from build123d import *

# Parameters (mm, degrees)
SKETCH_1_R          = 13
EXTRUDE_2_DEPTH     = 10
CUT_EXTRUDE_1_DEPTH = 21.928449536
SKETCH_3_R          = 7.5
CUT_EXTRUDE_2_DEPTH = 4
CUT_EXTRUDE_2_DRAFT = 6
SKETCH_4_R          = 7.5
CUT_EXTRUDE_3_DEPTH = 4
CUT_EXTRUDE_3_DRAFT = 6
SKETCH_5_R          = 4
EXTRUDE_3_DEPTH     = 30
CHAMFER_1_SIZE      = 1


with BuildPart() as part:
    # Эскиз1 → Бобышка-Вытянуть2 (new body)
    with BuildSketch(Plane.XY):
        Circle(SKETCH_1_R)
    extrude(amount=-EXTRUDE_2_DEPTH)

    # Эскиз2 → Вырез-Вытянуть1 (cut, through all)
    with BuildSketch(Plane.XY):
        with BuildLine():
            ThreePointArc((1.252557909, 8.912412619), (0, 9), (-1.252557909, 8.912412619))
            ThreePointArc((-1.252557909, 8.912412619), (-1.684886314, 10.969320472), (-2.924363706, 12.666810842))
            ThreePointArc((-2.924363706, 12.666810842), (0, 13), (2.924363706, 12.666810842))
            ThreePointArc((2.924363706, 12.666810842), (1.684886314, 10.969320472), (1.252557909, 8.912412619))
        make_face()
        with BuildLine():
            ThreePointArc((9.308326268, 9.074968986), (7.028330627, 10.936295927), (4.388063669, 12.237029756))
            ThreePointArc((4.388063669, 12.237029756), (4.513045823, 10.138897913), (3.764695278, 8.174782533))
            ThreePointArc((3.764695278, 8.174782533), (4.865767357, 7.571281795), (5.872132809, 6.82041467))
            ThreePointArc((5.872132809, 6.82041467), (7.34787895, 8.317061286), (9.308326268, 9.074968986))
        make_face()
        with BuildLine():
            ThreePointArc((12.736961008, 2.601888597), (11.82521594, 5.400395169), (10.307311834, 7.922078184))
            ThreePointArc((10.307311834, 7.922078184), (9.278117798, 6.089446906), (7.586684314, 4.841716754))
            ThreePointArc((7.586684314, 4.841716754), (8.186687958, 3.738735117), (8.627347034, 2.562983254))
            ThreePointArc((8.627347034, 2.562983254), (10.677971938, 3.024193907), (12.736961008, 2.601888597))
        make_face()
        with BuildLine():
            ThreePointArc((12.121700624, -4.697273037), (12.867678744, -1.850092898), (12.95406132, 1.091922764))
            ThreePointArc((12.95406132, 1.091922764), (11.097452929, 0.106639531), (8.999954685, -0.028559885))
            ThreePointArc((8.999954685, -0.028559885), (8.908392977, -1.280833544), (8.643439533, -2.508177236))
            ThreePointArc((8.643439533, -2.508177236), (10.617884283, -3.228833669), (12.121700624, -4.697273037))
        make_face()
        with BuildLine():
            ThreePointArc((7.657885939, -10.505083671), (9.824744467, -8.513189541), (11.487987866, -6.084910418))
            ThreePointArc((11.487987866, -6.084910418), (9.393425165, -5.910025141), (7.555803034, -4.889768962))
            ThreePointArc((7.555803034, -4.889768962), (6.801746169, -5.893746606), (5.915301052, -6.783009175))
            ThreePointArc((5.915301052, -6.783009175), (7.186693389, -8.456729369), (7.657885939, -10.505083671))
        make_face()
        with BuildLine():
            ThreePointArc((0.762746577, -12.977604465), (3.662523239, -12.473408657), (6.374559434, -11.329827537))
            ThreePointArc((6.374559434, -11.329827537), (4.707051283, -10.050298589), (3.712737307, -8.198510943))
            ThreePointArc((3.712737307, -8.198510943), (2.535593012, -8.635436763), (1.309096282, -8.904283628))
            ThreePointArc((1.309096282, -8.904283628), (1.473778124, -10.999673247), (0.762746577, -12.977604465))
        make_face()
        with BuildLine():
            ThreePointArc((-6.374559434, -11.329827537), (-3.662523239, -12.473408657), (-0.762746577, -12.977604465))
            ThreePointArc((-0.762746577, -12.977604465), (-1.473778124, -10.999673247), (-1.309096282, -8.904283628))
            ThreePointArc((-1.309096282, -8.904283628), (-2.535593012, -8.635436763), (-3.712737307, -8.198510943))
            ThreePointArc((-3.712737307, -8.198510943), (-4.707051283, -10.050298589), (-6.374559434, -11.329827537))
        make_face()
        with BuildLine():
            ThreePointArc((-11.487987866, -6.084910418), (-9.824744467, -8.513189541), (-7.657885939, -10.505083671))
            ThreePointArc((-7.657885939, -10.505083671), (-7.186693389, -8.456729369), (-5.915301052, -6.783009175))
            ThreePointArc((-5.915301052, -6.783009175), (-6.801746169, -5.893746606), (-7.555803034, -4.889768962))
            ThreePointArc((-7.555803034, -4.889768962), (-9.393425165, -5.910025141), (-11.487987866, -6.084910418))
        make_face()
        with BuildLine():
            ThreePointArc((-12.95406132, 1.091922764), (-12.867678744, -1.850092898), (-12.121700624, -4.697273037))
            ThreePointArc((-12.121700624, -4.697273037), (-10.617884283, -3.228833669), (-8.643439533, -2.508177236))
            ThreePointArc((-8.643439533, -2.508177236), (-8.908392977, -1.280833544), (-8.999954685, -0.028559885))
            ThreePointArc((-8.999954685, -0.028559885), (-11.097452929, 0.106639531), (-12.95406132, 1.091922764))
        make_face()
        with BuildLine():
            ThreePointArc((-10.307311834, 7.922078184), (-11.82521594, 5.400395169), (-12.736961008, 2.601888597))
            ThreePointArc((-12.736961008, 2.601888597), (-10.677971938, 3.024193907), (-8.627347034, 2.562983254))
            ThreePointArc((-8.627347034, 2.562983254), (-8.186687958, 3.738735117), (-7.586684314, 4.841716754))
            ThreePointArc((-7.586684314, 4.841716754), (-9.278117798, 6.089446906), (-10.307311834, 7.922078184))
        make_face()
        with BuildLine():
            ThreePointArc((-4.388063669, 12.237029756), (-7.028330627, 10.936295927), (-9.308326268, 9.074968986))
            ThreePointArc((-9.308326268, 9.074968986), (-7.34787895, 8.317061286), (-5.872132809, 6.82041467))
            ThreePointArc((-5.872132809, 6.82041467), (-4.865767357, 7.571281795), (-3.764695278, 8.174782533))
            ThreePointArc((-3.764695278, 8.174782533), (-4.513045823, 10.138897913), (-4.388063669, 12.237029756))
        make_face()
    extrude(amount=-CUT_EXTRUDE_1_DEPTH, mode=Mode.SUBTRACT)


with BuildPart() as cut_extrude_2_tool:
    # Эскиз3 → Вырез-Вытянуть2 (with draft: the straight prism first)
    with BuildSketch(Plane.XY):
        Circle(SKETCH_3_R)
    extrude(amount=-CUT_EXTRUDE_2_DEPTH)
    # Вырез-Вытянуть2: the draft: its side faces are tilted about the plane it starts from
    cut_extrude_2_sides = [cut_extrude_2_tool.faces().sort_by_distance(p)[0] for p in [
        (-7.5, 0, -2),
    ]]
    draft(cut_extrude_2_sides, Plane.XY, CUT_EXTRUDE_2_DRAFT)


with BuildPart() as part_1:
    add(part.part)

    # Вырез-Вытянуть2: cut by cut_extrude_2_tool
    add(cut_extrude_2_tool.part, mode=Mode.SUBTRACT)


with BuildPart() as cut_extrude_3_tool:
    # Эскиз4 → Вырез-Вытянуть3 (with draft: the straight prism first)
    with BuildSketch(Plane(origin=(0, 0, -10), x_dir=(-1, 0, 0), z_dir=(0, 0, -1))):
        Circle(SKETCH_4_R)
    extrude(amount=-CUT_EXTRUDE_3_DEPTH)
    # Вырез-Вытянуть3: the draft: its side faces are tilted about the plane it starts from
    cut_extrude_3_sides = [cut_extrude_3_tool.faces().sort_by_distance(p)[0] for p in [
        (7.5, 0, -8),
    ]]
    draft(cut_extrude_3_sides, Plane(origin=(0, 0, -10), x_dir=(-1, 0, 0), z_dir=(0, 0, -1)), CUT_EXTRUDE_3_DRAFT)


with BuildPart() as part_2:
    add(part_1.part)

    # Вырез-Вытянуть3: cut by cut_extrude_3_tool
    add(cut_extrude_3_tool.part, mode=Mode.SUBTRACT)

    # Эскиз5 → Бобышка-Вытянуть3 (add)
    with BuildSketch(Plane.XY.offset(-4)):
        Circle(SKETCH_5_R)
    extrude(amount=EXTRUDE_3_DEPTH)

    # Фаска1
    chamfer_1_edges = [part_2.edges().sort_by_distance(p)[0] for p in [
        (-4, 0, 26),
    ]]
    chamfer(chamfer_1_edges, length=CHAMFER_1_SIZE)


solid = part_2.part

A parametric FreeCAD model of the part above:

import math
import FreeCAD as App
import Part
import Sketcher
Q = App.Units.Quantity


def edges_at(feature, points):
    """Names of the edges that pass closest to the given points."""
    edges = feature.Shape.Edges
    near = lambda p: min(range(len(edges)), key=lambda i: edges[i].distToShape(Part.Vertex(*p))[0])
    return sorted({f"Edge{near(p) + 1}" for p in points})


def faces_at(feature, points):
    """Names of the faces that lie closest to the given points."""
    faces = feature.Shape.Faces
    near = lambda p: min(range(len(faces)), key=lambda i: faces[i].distToShape(Part.Vertex(*p))[0])
    return sorted({f"Face{near(p) + 1}" for p in points})

doc = App.newDocument("Part")
body = doc.addObject("PartDesign::Body", "Body")

sketch1 = body.newObject("Sketcher::SketchObject", "Sketch")
sketch1.AttachmentSupport = (doc.getObject("XY_Plane"), [""])
sketch1.MapMode = "FlatFace"
sketch1.addGeometry(Part.Circle(App.Vector(0, 0, 0), App.Vector(0, 0, 1), 13), False)
sketch1.addConstraint([
    Sketcher.Constraint("Coincident", 0, 3, -1, 1),
    Sketcher.Constraint("Diameter", 0, Q("26 mm")),
])
pad1 = body.newObject("PartDesign::Pad", "Pad")
pad1.Profile = sketch1
pad1.Length = 10
pad1.Reversed = True

sketch2 = body.newObject("Sketcher::SketchObject", "Sketch001")
sketch2.AttachmentSupport = (doc.getObject("XY_Plane"), [""])
sketch2.MapMode = "FlatFace"
sketch2.addGeometry([
    Part.ArcOfCircle(Part.Circle(App.Vector(0, 0, 0), App.Vector(0, 0, 1), 9), math.radians(82), math.radians(98)),
    Part.ArcOfCircle(Part.Circle(App.Vector(6.3, 8.9, 0), App.Vector(0, 0, 1), 5), math.radians(132), math.radians(180)),
    Part.ArcOfCircle(Part.Circle(App.Vector(0, 0, 0), App.Vector(0, 0, 1), 13), math.radians(77), math.radians(103)),
    Part.ArcOfCircle(Part.Circle(App.Vector(-6.3, 8.9, 0), App.Vector(0, 0, 1), 5), math.radians(0), math.radians(48)),
    Part.ArcOfCircle(Part.Circle(App.Vector(0, 0, 0), App.Vector(0, 0, 1), 13), math.radians(44), math.radians(70)),
    Part.ArcOfCircle(Part.Circle(App.Vector(-0.4, 10.9, 0), App.Vector(0, 0, 1), 5), math.radians(-33), math.radians(16)),
    Part.ArcOfCircle(Part.Circle(App.Vector(0, 0, 0), App.Vector(0, 0, 1), 9), math.radians(49.27), math.radians(65.27)),
    Part.ArcOfCircle(Part.Circle(App.Vector(10.1, 4.1, 0), App.Vector(0, 0, 1), 5), math.radians(99), math.radians(148)),
    Part.ArcOfCircle(Part.Circle(App.Vector(0, 0, 0), App.Vector(0, 0, 1), 13), math.radians(12), math.radians(38)),
    Part.ArcOfCircle(Part.Circle(App.Vector(5.5, 9.4, 0), App.Vector(0, 0, 1), 5), math.radians(-66), math.radians(-17)),
    Part.ArcOfCircle(Part.Circle(App.Vector(0, 0, 0), App.Vector(0, 0, 1), 9), math.radians(16.55), math.radians(32.55)),
    Part.ArcOfCircle(Part.Circle(App.Vector(10.7, -2, 0), App.Vector(0, 0, 1), 5), math.radians(66), math.radians(115)),
    Part.ArcOfCircle(Part.Circle(App.Vector(0, 0, 0), App.Vector(0, 0, 1), 13), math.radians(-21), math.radians(5)),
    Part.ArcOfCircle(Part.Circle(App.Vector(9.7, 4.9, 0), App.Vector(0, 0, 1), 5), math.radians(-98), math.radians(-50)),
    Part.ArcOfCircle(Part.Circle(App.Vector(0, 0, 0), App.Vector(0, 0, 1), 9), math.radians(-16.18), math.radians(-0.18)),
    Part.ArcOfCircle(Part.Circle(App.Vector(8, -7.5, 0), App.Vector(0, 0, 1), 5), math.radians(34), math.radians(82)),
    Part.ArcOfCircle(Part.Circle(App.Vector(0, 0, 0), App.Vector(0, 0, 1), 13), math.radians(-54), math.radians(-28)),
    Part.ArcOfCircle(Part.Circle(App.Vector(10.8, -1.1, 0), App.Vector(0, 0, 1), 5), math.radians(-131), math.radians(-83)),
    Part.ArcOfCircle(Part.Circle(App.Vector(0, 0, 0), App.Vector(0, 0, 1), 9), math.radians(-48.91), math.radians(-32.91)),
    Part.ArcOfCircle(Part.Circle(App.Vector(2.7, -10.6, 0), App.Vector(0, 0, 1), 5), math.radians(1), math.radians(49)),
    Part.ArcOfCircle(Part.Circle(App.Vector(0, 0, 0), App.Vector(0, 0, 1), 13), math.radians(-87), math.radians(-61)),
    Part.ArcOfCircle(Part.Circle(App.Vector(8.5, -6.8, 0), App.Vector(0, 0, 1), 5), math.radians(-164), math.radians(-115)),
    Part.ArcOfCircle(Part.Circle(App.Vector(0, 0, 0), App.Vector(0, 0, 1), 9), math.radians(-81.64), math.radians(-65.64)),
    Part.ArcOfCircle(Part.Circle(App.Vector(-3.5, -10.3, 0), App.Vector(0, 0, 1), 5), math.radians(-32), math.radians(17)),
    Part.ArcOfCircle(Part.Circle(App.Vector(0, 0, 0), App.Vector(0, 0, 1), 13), math.radians(-119), math.radians(-93)),
    Part.ArcOfCircle(Part.Circle(App.Vector(3.5, -10.3, 0), App.Vector(0, 0, 1), 5), math.radians(163), math.radians(212)),
    Part.ArcOfCircle(Part.Circle(App.Vector(0, 0, 0), App.Vector(0, 0, 1), 9), math.radians(-114.36), math.radians(-98.36)),
    Part.ArcOfCircle(Part.Circle(App.Vector(-8.5, -6.8, 0), App.Vector(0, 0, 1), 5), math.radians(-65), math.radians(-16)),
    Part.ArcOfCircle(Part.Circle(App.Vector(0, 0, 0), App.Vector(0, 0, 1), 13), math.radians(-152), math.radians(-126)),
    Part.ArcOfCircle(Part.Circle(App.Vector(-2.7, -10.6, 0), App.Vector(0, 0, 1), 5), math.radians(131), math.radians(179)),
    Part.ArcOfCircle(Part.Circle(App.Vector(0, 0, 0), App.Vector(0, 0, 1), 9), math.radians(-147.09), math.radians(-131.09)),
    Part.ArcOfCircle(Part.Circle(App.Vector(-10.8, -1.1, 0), App.Vector(0, 0, 1), 5), math.radians(-97), math.radians(-49)),
    Part.ArcOfCircle(Part.Circle(App.Vector(0, 0, 0), App.Vector(0, 0, 1), 13), math.radians(175), math.radians(201)),
    Part.ArcOfCircle(Part.Circle(App.Vector(-8, -7.5, 0), App.Vector(0, 0, 1), 5), math.radians(98), math.radians(146)),
    Part.ArcOfCircle(Part.Circle(App.Vector(0, 0, 0), App.Vector(0, 0, 1), 9), math.radians(-179.82), math.radians(-163.82)),
    Part.ArcOfCircle(Part.Circle(App.Vector(-9.7, 4.9, 0), App.Vector(0, 0, 1), 5), math.radians(-130), math.radians(-82)),
    Part.ArcOfCircle(Part.Circle(App.Vector(0, 0, 0), App.Vector(0, 0, 1), 13), math.radians(142), math.radians(168)),
    Part.ArcOfCircle(Part.Circle(App.Vector(-10.7, -2, 0), App.Vector(0, 0, 1), 5), math.radians(65), math.radians(114)),
    Part.ArcOfCircle(Part.Circle(App.Vector(0, 0, 0), App.Vector(0, 0, 1), 9), math.radians(147.45), math.radians(163.45)),
    Part.ArcOfCircle(Part.Circle(App.Vector(-5.5, 9.4, 0), App.Vector(0, 0, 1), 5), math.radians(-163), math.radians(-114)),
    Part.ArcOfCircle(Part.Circle(App.Vector(0, 0, 0), App.Vector(0, 0, 1), 13), math.radians(110), math.radians(136)),
    Part.ArcOfCircle(Part.Circle(App.Vector(-10.1, 4.1, 0), App.Vector(0, 0, 1), 5), math.radians(32), math.radians(81)),
    Part.ArcOfCircle(Part.Circle(App.Vector(0, 0, 0), App.Vector(0, 0, 1), 9), math.radians(114.73), math.radians(130.73)),
    Part.ArcOfCircle(Part.Circle(App.Vector(0.4, 10.9, 0), App.Vector(0, 0, 1), 5), math.radians(164), math.radians(213)),
], False)
sketch2.addConstraint([
    Sketcher.Constraint("Coincident", 0, 1, 1, 2),
    Sketcher.Constraint("Coincident", 1, 1, 2, 1),
    Sketcher.Constraint("Coincident", 2, 2, 3, 2),
    Sketcher.Constraint("Coincident", 3, 1, 0, 2),
    Sketcher.Constraint("Coincident", 4, 2, 5, 2),
    Sketcher.Constraint("Coincident", 5, 1, 6, 2),
    Sketcher.Constraint("Coincident", 6, 1, 7, 2),
    Sketcher.Constraint("Coincident", 7, 1, 4, 1),
    Sketcher.Constraint("Coincident", 8, 2, 9, 2),
    Sketcher.Constraint("Coincident", 9, 1, 10, 2),
    Sketcher.Constraint("Coincident", 10, 1, 11, 2),
    Sketcher.Constraint("Coincident", 11, 1, 8, 1),
    Sketcher.Constraint("Coincident", 12, 2, 13, 2),
    Sketcher.Constraint("Coincident", 13, 1, 14, 2),
    Sketcher.Constraint("Coincident", 14, 1, 15, 2),
    Sketcher.Constraint("Coincident", 15, 1, 12, 1),
    Sketcher.Constraint("Coincident", 16, 2, 17, 2),
    Sketcher.Constraint("Coincident", 17, 1, 18, 2),
    Sketcher.Constraint("Coincident", 18, 1, 19, 2),
    Sketcher.Constraint("Coincident", 19, 1, 16, 1),
    Sketcher.Constraint("Coincident", 20, 2, 21, 2),
    Sketcher.Constraint("Coincident", 21, 1, 22, 2),
    Sketcher.Constraint("Coincident", 22, 1, 23, 2),
    Sketcher.Constraint("Coincident", 23, 1, 20, 1),
    Sketcher.Constraint("Coincident", 24, 2, 25, 2),
    Sketcher.Constraint("Coincident", 25, 1, 26, 2),
    Sketcher.Constraint("Coincident", 26, 1, 27, 2),
    Sketcher.Constraint("Coincident", 27, 1, 24, 1),
    Sketcher.Constraint("Coincident", 28, 2, 29, 2),
    Sketcher.Constraint("Coincident", 29, 1, 30, 2),
    Sketcher.Constraint("Coincident", 30, 1, 31, 2),
    Sketcher.Constraint("Coincident", 31, 1, 28, 1),
    Sketcher.Constraint("Coincident", 32, 2, 33, 2),
    Sketcher.Constraint("Coincident", 33, 1, 34, 2),
    Sketcher.Constraint("Coincident", 34, 1, 35, 2),
    Sketcher.Constraint("Coincident", 35, 1, 32, 1),
    Sketcher.Constraint("Coincident", 36, 2, 37, 2),
    Sketcher.Constraint("Coincident", 37, 1, 38, 2),
    Sketcher.Constraint("Coincident", 38, 1, 39, 2),
    Sketcher.Constraint("Coincident", 39, 1, 36, 1),
    Sketcher.Constraint("Coincident", 40, 2, 41, 2),
    Sketcher.Constraint("Coincident", 41, 1, 42, 2),
    Sketcher.Constraint("Coincident", 42, 1, 43, 2),
    Sketcher.Constraint("Coincident", 43, 1, 40, 1),
    Sketcher.Constraint("Coincident", 0, 3, -1, 1),
    Sketcher.Constraint("Coincident", 2, 3, -1, 1),
    Sketcher.Constraint("Coincident", 4, 3, -1, 1),
    Sketcher.Constraint("Coincident", 6, 3, -1, 1),
    Sketcher.Constraint("Coincident", 8, 3, -1, 1),
    Sketcher.Constraint("Coincident", 10, 3, -1, 1),
    Sketcher.Constraint("Coincident", 12, 3, -1, 1),
    Sketcher.Constraint("Coincident", 14, 3, -1, 1),
    Sketcher.Constraint("Coincident", 16, 3, -1, 1),
    Sketcher.Constraint("Coincident", 18, 3, -1, 1),
    Sketcher.Constraint("Coincident", 20, 3, -1, 1),
    Sketcher.Constraint("Coincident", 22, 3, -1, 1),
    Sketcher.Constraint("Coincident", 24, 3, -1, 1),
    Sketcher.Constraint("Coincident", 26, 3, -1, 1),
    Sketcher.Constraint("Coincident", 28, 3, -1, 1),
    Sketcher.Constraint("Coincident", 30, 3, -1, 1),
    Sketcher.Constraint("Coincident", 32, 3, -1, 1),
    Sketcher.Constraint("Coincident", 34, 3, -1, 1),
    Sketcher.Constraint("Coincident", 36, 3, -1, 1),
    Sketcher.Constraint("Coincident", 38, 3, -1, 1),
    Sketcher.Constraint("Coincident", 40, 3, -1, 1),
    Sketcher.Constraint("Coincident", 42, 3, -1, 1),
    Sketcher.Constraint("Equal", 1, 3),
    Sketcher.Constraint("Equal", 2, 4),
    Sketcher.Constraint("Equal", 3, 5),
    Sketcher.Constraint("Equal", 0, 6),
    Sketcher.Constraint("Equal", 5, 7),
    Sketcher.Constraint("Equal", 4, 8),
    Sketcher.Constraint("Equal", 7, 9),
    Sketcher.Constraint("Equal", 6, 10),
    Sketcher.Constraint("Equal", 9, 11),
    Sketcher.Constraint("Equal", 8, 12),
    Sketcher.Constraint("Equal", 11, 13),
    Sketcher.Constraint("Equal", 10, 14),
    Sketcher.Constraint("Equal", 13, 15),
    Sketcher.Constraint("Equal", 12, 16),
    Sketcher.Constraint("Equal", 15, 17),
    Sketcher.Constraint("Equal", 14, 18),
    Sketcher.Constraint("Equal", 17, 19),
    Sketcher.Constraint("Equal", 16, 20),
    Sketcher.Constraint("Equal", 19, 21),
    Sketcher.Constraint("Equal", 18, 22),
    Sketcher.Constraint("Equal", 21, 23),
    Sketcher.Constraint("Equal", 20, 24),
    Sketcher.Constraint("Equal", 23, 25),
    Sketcher.Constraint("Equal", 22, 26),
    Sketcher.Constraint("Equal", 25, 27),
    Sketcher.Constraint("Equal", 24, 28),
    Sketcher.Constraint("Equal", 27, 29),
    Sketcher.Constraint("Equal", 26, 30),
    Sketcher.Constraint("Equal", 29, 31),
    Sketcher.Constraint("Equal", 28, 32),
    Sketcher.Constraint("Equal", 31, 33),
    Sketcher.Constraint("Equal", 30, 34),
    Sketcher.Constraint("Equal", 33, 35),
    Sketcher.Constraint("Equal", 32, 36),
    Sketcher.Constraint("Equal", 35, 37),
    Sketcher.Constraint("Equal", 34, 38),
    Sketcher.Constraint("Equal", 37, 39),
    Sketcher.Constraint("Equal", 36, 40),
    Sketcher.Constraint("Equal", 39, 41),
    Sketcher.Constraint("Equal", 38, 42),
    Sketcher.Constraint("Equal", 41, 43),
    Sketcher.Constraint("Symmetric", 1, 3, 3, 3, -2),
    Sketcher.Constraint("Symmetric", 23, 3, 25, 3, -2),
    Sketcher.Constraint("Symmetric", 21, 3, 27, 3, -2),
    Sketcher.Constraint("Symmetric", 19, 3, 29, 3, -2),
    Sketcher.Constraint("Symmetric", 17, 3, 31, 3, -2),
    Sketcher.Constraint("Symmetric", 15, 3, 33, 3, -2),
    Sketcher.Constraint("Symmetric", 13, 3, 35, 3, -2),
    Sketcher.Constraint("Symmetric", 11, 3, 37, 3, -2),
    Sketcher.Constraint("Symmetric", 9, 3, 39, 3, -2),
    Sketcher.Constraint("Symmetric", 7, 3, 41, 3, -2),
    Sketcher.Constraint("Symmetric", 5, 3, 43, 3, -2),
    Sketcher.Constraint("Radius", 0, Q("9 mm")),
    Sketcher.Constraint("Radius", 1, Q("5 mm")),
    Sketcher.Constraint("Radius", 2, Q("13 mm")),
    Sketcher.Constraint("DistanceX", -1, 1, 19, 3, Q("2.6584 mm")),
    Sketcher.Constraint("DistanceX", -1, 1, 15, 1, Q("12.121701 mm")),
    Sketcher.Constraint("DistanceX", -1, 1, 18, 1, Q("5.915301 mm")),
    Sketcher.Constraint("DistanceY", -1, 1, 5, 3, Q("10.897291 mm")),
    Sketcher.Constraint("DistanceX", -1, 1, 7, 3, Q("10.09078 mm")),
    Sketcher.Constraint("DistanceY", -1, 1, 7, 3, Q("4.136572 mm")),
    Sketcher.Constraint("DistanceX", -1, 1, 13, 3, Q("9.734268 mm")),
    Sketcher.Constraint("DistanceX", -1, 1, 15, 3, Q("7.95462 mm")),
    Sketcher.Constraint("DistanceX", -1, 1, 17, 3, Q("10.84744 mm")),
    Sketcher.Constraint("DistanceY", 17, 3, -1, 1, Q("1.12611 mm")),
    Sketcher.Constraint("DistanceY", 23, 3, -1, 1, Q("10.334982 mm")),
    Sketcher.Constraint("DistanceY", -1, 1, 1, 1, Q("12.666811 mm")),
    Sketcher.Constraint("DistanceY", -1, 1, 4, 2, Q("12.23703 mm")),
    Sketcher.Constraint("DistanceX", -1, 1, 8, 2, Q("10.307312 mm")),
    Sketcher.Constraint("DistanceX", -1, 1, 11, 1, Q("12.736961 mm")),
    Sketcher.Constraint("DistanceX", -1, 1, 12, 2, Q("12.954061 mm")),
    Sketcher.Constraint("DistanceX", -1, 1, 20, 2, Q("6.374559 mm")),
    Sketcher.Constraint("DistanceY", 21, 1, -1, 1, Q("8.198511 mm")),
    Sketcher.Constraint("DistanceX", -1, 1, 1, 3, Q("6.252505 mm")),
    Sketcher.Constraint("DistanceX", -1, 1, 9, 3, Q("5.530535 mm")),
    Sketcher.Constraint("DistanceX", -1, 1, 11, 3, Q("10.725304 mm")),
    Sketcher.Constraint("DistanceX", 23, 3, -1, 1, Q("3.481843 mm")),
])
pocket1 = body.newObject("PartDesign::Pocket", "Pocket")
pocket1.Profile = sketch2
pocket1.Type = "ThroughAll"
body2 = doc.addObject("PartDesign::Body", "Body001")

sketch3 = body2.newObject("Sketcher::SketchObject", "Sketch002")
sketch3.AttachmentSupport = (doc.getObject("XY_Plane001"), [""])
sketch3.MapMode = "FlatFace"
sketch3.addGeometry(Part.Circle(App.Vector(0, 0, 0), App.Vector(0, 0, 1), 8), False)
sketch3.addConstraint([
    Sketcher.Constraint("Coincident", 0, 3, -1, 1),
    Sketcher.Constraint("Diameter", 0, Q("15 mm")),
])
pad2 = body2.newObject("PartDesign::Pad", "Pad001")
pad2.Profile = sketch3
pad2.Length = 4
pad2.Reversed = True
doc.recompute()

draft = body2.newObject("PartDesign::Draft", "Draft")
draft.Base = (pad2, faces_at(pad2, [(-7.5, 0, -2)]))
draft.NeutralPlane = (doc.getObject("XY_Plane001"), [""])
draft.Angle = 6
draft.Reversed = False
doc.recompute()

boolean = body.newObject("PartDesign::Boolean", "Boolean")
boolean.Type = "Cut"
boolean.addObjects([body2])
body3 = doc.addObject("PartDesign::Body", "Body002")

sketch4 = body3.newObject("Sketcher::SketchObject", "Sketch003")
sketch4.AttachmentSupport = (doc.getObject("XY_Plane002"), [""])
sketch4.MapMode = "FlatFace"
sketch4.AttachmentOffset = App.Placement(App.Vector(0, 0, -10), App.Rotation())
sketch4.addGeometry(Part.Circle(App.Vector(0, 0, 0), App.Vector(0, 0, 1), 8), False)
sketch4.addConstraint([
    Sketcher.Constraint("Coincident", 0, 3, -1, 1),
    Sketcher.Constraint("Diameter", 0, Q("15 mm")),
])
pad3 = body3.newObject("PartDesign::Pad", "Pad002")
pad3.Profile = sketch4
pad3.Length = 4
doc.recompute()

datumplane = body3.newObject("PartDesign::Plane", "DatumPlane")
datumplane.AttachmentSupport = (doc.getObject("XY_Plane002"), [""])
datumplane.MapMode = "FlatFace"
datumplane.AttachmentOffset = App.Placement(App.Vector(0, 0, -10), App.Rotation())
draft2 = body3.newObject("PartDesign::Draft", "Draft001")
draft2.Base = (pad3, faces_at(pad3, [(7.5, 0, -8)]))
draft2.NeutralPlane = (datumplane, [""])
draft2.Angle = 6
draft2.Reversed = True
doc.recompute()

boolean2 = body.newObject("PartDesign::Boolean", "Boolean001")
boolean2.Type = "Cut"
boolean2.addObjects([body3])

sketch5 = body.newObject("Sketcher::SketchObject", "Sketch004")
sketch5.AttachmentSupport = (doc.getObject("XY_Plane"), [""])
sketch5.MapMode = "FlatFace"
sketch5.AttachmentOffset = App.Placement(App.Vector(0, 0, -4), App.Rotation())
sketch5.addGeometry(Part.Circle(App.Vector(0, 0, 0), App.Vector(0, 0, 1), 4), False)
sketch5.addConstraint([
    Sketcher.Constraint("Coincident", 0, 3, -1, 1),
    Sketcher.Constraint("Diameter", 0, Q("8 mm")),
])
pad4 = body.newObject("PartDesign::Pad", "Pad003")
pad4.Profile = sketch5
pad4.Length = 30
doc.recompute()

chamfer = body.newObject("PartDesign::Chamfer", "Chamfer")
chamfer.Base = (pad4, edges_at(pad4, [(-4, 0, 26)]))
chamfer.Size = 1

doc.recompute()
